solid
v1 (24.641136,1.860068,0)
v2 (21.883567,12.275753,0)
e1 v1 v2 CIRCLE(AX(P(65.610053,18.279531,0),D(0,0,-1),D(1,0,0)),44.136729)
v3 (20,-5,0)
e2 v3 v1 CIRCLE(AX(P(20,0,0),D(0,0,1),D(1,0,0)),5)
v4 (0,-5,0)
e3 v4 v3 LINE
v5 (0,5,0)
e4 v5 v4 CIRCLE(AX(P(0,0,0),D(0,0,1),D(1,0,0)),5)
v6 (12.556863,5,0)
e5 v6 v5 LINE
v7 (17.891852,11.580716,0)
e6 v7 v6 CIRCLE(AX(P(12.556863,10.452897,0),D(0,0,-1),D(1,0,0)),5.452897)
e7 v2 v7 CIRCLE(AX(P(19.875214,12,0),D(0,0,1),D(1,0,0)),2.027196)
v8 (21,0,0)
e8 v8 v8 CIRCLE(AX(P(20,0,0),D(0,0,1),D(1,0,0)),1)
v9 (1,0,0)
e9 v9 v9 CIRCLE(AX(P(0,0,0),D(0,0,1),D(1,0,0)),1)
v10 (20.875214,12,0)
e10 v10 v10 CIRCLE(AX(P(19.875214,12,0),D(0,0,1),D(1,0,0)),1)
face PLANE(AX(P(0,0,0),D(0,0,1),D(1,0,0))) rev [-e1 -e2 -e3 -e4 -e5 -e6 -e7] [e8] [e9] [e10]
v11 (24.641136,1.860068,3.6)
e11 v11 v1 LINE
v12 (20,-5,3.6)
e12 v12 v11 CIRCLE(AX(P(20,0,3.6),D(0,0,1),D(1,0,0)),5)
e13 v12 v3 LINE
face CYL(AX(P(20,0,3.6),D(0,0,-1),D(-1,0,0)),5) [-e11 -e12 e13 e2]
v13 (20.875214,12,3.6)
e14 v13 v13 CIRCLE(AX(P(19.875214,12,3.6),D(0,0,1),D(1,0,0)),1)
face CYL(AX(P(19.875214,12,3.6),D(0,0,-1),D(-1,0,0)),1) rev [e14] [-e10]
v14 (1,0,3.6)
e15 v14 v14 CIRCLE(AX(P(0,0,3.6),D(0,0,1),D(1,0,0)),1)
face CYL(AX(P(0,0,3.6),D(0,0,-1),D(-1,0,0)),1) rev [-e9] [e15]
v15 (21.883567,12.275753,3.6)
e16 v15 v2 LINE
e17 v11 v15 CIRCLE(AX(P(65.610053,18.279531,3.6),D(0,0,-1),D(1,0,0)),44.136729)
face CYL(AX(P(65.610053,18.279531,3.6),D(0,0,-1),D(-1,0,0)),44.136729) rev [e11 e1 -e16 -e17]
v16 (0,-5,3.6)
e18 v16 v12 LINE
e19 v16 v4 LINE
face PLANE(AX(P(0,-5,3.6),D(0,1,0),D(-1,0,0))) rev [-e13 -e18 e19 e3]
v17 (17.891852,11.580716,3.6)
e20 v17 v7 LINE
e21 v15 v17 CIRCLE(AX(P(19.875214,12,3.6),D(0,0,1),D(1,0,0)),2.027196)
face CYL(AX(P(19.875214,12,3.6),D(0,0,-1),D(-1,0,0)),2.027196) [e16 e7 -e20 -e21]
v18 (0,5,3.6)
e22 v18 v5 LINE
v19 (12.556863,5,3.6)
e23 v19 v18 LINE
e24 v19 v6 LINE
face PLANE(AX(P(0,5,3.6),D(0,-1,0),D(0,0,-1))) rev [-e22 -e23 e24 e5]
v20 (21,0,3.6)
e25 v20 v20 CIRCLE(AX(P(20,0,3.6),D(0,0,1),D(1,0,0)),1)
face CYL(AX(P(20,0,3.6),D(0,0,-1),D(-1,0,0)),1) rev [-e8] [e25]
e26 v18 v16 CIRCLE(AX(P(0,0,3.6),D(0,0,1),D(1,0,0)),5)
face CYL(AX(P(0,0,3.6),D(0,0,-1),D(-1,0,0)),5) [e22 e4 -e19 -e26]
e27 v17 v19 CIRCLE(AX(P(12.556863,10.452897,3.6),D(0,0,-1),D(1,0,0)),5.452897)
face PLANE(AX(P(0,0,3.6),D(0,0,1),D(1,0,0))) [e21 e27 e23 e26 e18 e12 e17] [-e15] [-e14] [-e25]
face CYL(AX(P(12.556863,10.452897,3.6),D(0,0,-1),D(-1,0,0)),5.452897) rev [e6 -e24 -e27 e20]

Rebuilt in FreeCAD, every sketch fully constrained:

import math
import FreeCAD as App
import Part
import Sketcher
Q = App.Units.Quantity

doc = App.newDocument("Part")
body = doc.addObject("PartDesign::Body", "Body")

# Sketch on XY plane
sketch1 = body.newObject("Sketcher::SketchObject", "Sketch")
sketch1.AttachmentSupport = (doc.getObject("XY_Plane"), [""])
sketch1.MapMode = "FlatFace"
sketch1.addGeometry(Part.LineSegment(App.Vector(12.6, 5, 0), App.Vector(0, 5, 0)), False)
sketch1.addGeometry(Part.ArcOfCircle(Part.Circle(App.Vector(0, 0, 0), App.Vector(0, 0, 1), 5), math.radians(90), math.radians(270)), False)
sketch1.addGeometry(Part.LineSegment(App.Vector(0, -5, 0), App.Vector(20, -5, 0)), False)
sketch1.addGeometry(Part.ArcOfCircle(Part.Circle(App.Vector(20, 0, 0), App.Vector(0, 0, 1), 5), math.radians(-90), math.radians(22)), False)
sketch1.addGeometry(Part.ArcOfCircle(Part.Circle(App.Vector(65.6, 18.3, 0), App.Vector(0, 0, 1), 44.1), math.radians(-172.18), math.radians(-158.16)), False)
sketch1.addGeometry(Part.ArcOfCircle(Part.Circle(App.Vector(19.9, 12, 0), App.Vector(0, 0, 1), 2), math.radians(8), math.radians(192)), False)
sketch1.addGeometry(Part.ArcOfCircle(Part.Circle(App.Vector(12.6, 10.5, 0), App.Vector(0, 0, 1), 5.5), math.radians(-90), math.radians(12)), False)
sketch1.addGeometry(Part.Circle(App.Vector(20, 0, 0), App.Vector(0, 0, 1), 1), False)
sketch1.addGeometry(Part.Circle(App.Vector(0, 0, 0), App.Vector(0, 0, 1), 1), False)
sketch1.addGeometry(Part.Circle(App.Vector(19.9, 12, 0), App.Vector(0, 0, 1), 1), False)
sketch1.addConstraint(Sketcher.Constraint("Tangent", 0, 2, 1, 1))
sketch1.addConstraint(Sketcher.Constraint("Tangent", 1, 2, 2, 1))
sketch1.addConstraint(Sketcher.Constraint("Tangent", 2, 2, 3, 1))
sketch1.addConstraint(Sketcher.Constraint("Tangent", 3, 2, 4, 2))
sketch1.addConstraint(Sketcher.Constraint("Tangent", 4, 1, 5, 1))
sketch1.addConstraint(Sketcher.Constraint("Tangent", 5, 2, 6, 2))
sketch1.addConstraint(Sketcher.Constraint("Tangent", 6, 1, 0, 1))
sketch1.addConstraint(Sketcher.Constraint("Horizontal", 0))
sketch1.addConstraint(Sketcher.Constraint("Horizontal", 2))
sketch1.addConstraint(Sketcher.Constraint("Coincident", 1, 3, -1, 1))
sketch1.addConstraint(Sketcher.Constraint("Coincident", 8, 3, -1, 1))
sketch1.addConstraint(Sketcher.Constraint("Coincident", 7, 3, 3, 3))
sketch1.addConstraint(Sketcher.Constraint("Coincident", 9, 3, 5, 3))
sketch1.addConstraint(Sketcher.Constraint("Equal", 1, 3))
sketch1.addConstraint(Sketcher.Constraint("Equal", 7, 8))
sketch1.addConstraint(Sketcher.Constraint("Equal", 8, 9))
sketch1.addConstraint(Sketcher.Constraint("Diameter", 7, Q("2 mm")))
sketch1.addConstraint(Sketcher.Constraint("Radius", 1, Q("5 mm")))
sketch1.addConstraint(Sketcher.Constraint("DistanceX", 2, 1, 2, 2, Q("20 mm")))
sketch1.addConstraint(Sketcher.Constraint("DistanceY", -1, 1, 5, 3, Q("12 mm")))
sketch1.addConstraint(Sketcher.Constraint("Radius", 4, Q("44.136729 mm")))
sketch1.addConstraint(Sketcher.Constraint("Radius", 5, Q("2.027196 mm")))
sketch1.addConstraint(Sketcher.Constraint("Radius", 6, Q("5.452897 mm")))
sketch1.addConstraint(Sketcher.Constraint("DistanceX", 0, 2, 0, 1, Q("12.556863 mm")))
pad1 = body.newObject("PartDesign::Pad", "Pad")
pad1.Profile = sketch1
pad1.Length = 3.6

doc.recompute()
